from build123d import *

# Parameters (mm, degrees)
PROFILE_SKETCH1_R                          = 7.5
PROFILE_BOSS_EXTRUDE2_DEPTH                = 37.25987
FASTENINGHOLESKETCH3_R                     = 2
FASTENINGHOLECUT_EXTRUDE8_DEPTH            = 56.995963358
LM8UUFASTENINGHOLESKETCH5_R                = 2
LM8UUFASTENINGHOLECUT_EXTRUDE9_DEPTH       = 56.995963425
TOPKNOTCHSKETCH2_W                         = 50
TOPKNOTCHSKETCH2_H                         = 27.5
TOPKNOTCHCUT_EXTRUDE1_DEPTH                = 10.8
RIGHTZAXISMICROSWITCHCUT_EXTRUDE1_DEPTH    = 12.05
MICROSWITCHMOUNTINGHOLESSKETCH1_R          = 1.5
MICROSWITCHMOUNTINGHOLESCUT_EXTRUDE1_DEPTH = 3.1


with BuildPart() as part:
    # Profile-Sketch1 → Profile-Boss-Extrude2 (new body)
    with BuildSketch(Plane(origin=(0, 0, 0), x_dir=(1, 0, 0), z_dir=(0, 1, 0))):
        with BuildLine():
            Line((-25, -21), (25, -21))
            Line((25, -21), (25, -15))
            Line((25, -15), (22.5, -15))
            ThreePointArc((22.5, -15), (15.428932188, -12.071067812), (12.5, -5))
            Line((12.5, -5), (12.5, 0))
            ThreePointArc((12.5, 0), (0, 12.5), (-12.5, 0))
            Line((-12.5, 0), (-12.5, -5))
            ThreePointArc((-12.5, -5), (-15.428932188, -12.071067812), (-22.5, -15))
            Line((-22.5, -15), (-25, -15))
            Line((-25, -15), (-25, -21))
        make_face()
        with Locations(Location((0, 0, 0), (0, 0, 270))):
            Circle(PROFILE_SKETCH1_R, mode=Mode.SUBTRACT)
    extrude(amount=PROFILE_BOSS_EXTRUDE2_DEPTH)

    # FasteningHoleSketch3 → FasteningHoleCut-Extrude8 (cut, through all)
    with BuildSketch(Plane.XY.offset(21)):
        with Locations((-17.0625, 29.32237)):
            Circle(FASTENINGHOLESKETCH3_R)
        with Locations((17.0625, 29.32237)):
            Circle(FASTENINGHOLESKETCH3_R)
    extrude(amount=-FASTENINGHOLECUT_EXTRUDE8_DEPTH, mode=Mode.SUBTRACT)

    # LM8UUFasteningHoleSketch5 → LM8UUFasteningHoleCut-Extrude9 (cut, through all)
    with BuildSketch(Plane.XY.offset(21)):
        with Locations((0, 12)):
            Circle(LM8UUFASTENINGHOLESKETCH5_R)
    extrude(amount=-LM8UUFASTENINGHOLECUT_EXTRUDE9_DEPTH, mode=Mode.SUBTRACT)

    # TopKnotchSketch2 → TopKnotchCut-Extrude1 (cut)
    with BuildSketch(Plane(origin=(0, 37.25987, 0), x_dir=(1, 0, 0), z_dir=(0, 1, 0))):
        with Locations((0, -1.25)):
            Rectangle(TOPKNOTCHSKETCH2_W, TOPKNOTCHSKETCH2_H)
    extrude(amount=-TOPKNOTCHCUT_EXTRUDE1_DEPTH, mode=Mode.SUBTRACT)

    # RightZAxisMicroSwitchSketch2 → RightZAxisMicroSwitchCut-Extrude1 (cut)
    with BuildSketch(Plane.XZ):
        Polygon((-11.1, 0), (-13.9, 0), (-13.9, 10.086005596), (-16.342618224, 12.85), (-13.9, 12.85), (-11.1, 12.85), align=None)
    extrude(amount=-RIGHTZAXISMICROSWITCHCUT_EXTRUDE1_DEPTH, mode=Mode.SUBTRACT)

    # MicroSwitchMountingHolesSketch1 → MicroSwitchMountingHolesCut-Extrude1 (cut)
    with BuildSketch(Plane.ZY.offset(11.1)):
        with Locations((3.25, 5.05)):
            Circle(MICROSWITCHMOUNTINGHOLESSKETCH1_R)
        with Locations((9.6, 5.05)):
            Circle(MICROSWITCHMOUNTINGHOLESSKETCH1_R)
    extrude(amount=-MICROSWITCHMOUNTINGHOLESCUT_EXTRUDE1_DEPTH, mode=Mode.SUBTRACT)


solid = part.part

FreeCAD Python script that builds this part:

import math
import FreeCAD as App
import Part
import Sketcher

V = App.Vector
Q = App.Units.Quantity


def add_polygon(sketch, points):
    """Adds a closed chain of lines whose ends are joined by coincident constraints."""
    first, n = sketch.GeometryCount, len(points)
    for a, b in zip(points, points[1:] + points[:1]):
        sketch.addGeometry(Part.LineSegment(App.Vector(*a, 0), App.Vector(*b, 0)), False)
    for i in range(n):
        sketch.addConstraint(Sketcher.Constraint("Coincident", first + i, 2, first + (i + 1) % n, 1))

doc = App.newDocument("Part")
body = doc.addObject("PartDesign::Body", "Body")

# Sketch on XZ plane
sketch1 = body.newObject("Sketcher::SketchObject", "Sketch")
sketch1.AttachmentSupport = (doc.getObject("XZ_Plane"), [""])
sketch1.MapMode = "FlatFace"
sketch1.addGeometry([
    Part.LineSegment(V(-25, 21, 0), V(25, 21, 0)),  # 0
    Part.LineSegment(V(25, 21, 0), V(25, 15, 0)),  # 1
    Part.LineSegment(V(25, 15, 0), V(22.5, 15, 0)),  # 2
    Part.ArcOfCircle(Part.Circle(V(22.5, 5, 0), V(0, 0, 1), 10), math.radians(90), math.radians(180)),  # 3
    Part.LineSegment(V(12.5, 5, 0), V(12.5, 0, 0)),  # 4
    Part.ArcOfCircle(Part.Circle(V(0, 0, 0), V(0, 0, 1), 12.5), math.radians(180), math.radians(360)),  # 5
    Part.LineSegment(V(-12.5, 0, 0), V(-12.5, 5, 0)),  # 6
    Part.ArcOfCircle(Part.Circle(V(-22.5, 5, 0), V(0, 0, 1), 10), math.radians(0), math.radians(90)),  # 7
    Part.LineSegment(V(-22.5, 15, 0), V(-25, 15, 0)),  # 8
    Part.LineSegment(V(-25, 15, 0), V(-25, 21, 0)),  # 9
    Part.Circle(V(0, 0, 0), V(0, 0, 1), 7.5),  # 10
], False)
sketch1.addConstraint([
    Sketcher.Constraint("Coincident", 0, 2, 1, 1),
    Sketcher.Constraint("Coincident", 1, 2, 2, 1),
    Sketcher.Constraint("Tangent", 2, 2, 3, 1),
    Sketcher.Constraint("Tangent", 3, 2, 4, 1),
    Sketcher.Constraint("Tangent", 4, 2, 5, 2),
    Sketcher.Constraint("Tangent", 5, 1, 6, 1),
    Sketcher.Constraint("Tangent", 6, 2, 7, 1),
    Sketcher.Constraint("Tangent", 7, 2, 8, 1),
    Sketcher.Constraint("Coincident", 8, 2, 9, 1),
    Sketcher.Constraint("Coincident", 9, 2, 0, 1),
    Sketcher.Constraint("Horizontal", 0),
    Sketcher.Constraint("Vertical", 1),
    Sketcher.Constraint("Horizontal", 2),
    Sketcher.Constraint("Vertical", 4),
    Sketcher.Constraint("Vertical", 6),
    Sketcher.Constraint("Horizontal", 8),
    Sketcher.Constraint("Vertical", 9),
    Sketcher.Constraint("Coincident", 5, 3, -1, 1),
    Sketcher.Constraint("Coincident", 10, 3, -1, 1),
    Sketcher.Constraint("Equal", 3, 7),
    Sketcher.Constraint("Symmetric", 1, 2, 8, 2, -2),
    Sketcher.Constraint("Diameter", 10, Q("15 mm")),
    Sketcher.Constraint("Radius", 3, Q("10 mm")),
    Sketcher.Constraint("Radius", 5, Q("12.5 mm")),
    Sketcher.Constraint("DistanceX", 0, 1, 0, 2, Q("50 mm")),
    Sketcher.Constraint("DistanceY", 1, 2, 1, 1, Q("6 mm")),
    Sketcher.Constraint("DistanceY", 4, 2, 4, 1, Q("5 mm")),
])
pad1 = body.newObject("PartDesign::Pad", "Pad")
pad1.Profile = sketch1
pad1.Length = 37.25987
pad1.Reversed = True

# Sketch on XY plane
sketch2 = body.newObject("Sketcher::SketchObject", "Sketch001")
sketch2.AttachmentSupport = (doc.getObject("XY_Plane"), [""])
sketch2.MapMode = "FlatFace"
sketch2.AttachmentOffset = App.Placement(V(0, 0, 21), App.Rotation())
sketch2.addGeometry([
    Part.Circle(V(-17.1, 29.3, 0), V(0, 0, 1), 2),
    Part.Circle(V(17.1, 29.3, 0), V(0, 0, 1), 2),
], False)
sketch2.addConstraint([
    Sketcher.Constraint("Equal", 0, 1),
    Sketcher.Constraint("Symmetric", 0, 3, 1, 3, -2),
    Sketcher.Constraint("Diameter", 0, Q("4 mm")),
    Sketcher.Constraint("DistanceX", 0, 3, 1, 3, Q("34.125 mm")),
    Sketcher.Constraint("DistanceY", -1, 1, 0, 3, Q("29.32237 mm")),
])
pocket1 = body.newObject("PartDesign::Pocket", "Pocket")
pocket1.Profile = sketch2
pocket1.Type = "ThroughAll"

# Sketch on XY plane
sketch3 = body.newObject("Sketcher::SketchObject", "Sketch002")
sketch3.AttachmentSupport = (doc.getObject("XY_Plane"), [""])
sketch3.MapMode = "FlatFace"
sketch3.AttachmentOffset = App.Placement(V(0, 0, 21), App.Rotation())
sketch3.addGeometry(Part.Circle(V(0, 12, 0), V(0, 0, 1), 2), False)
sketch3.addConstraint([
    Sketcher.Constraint("PointOnObject", 0, 3, -2),
    Sketcher.Constraint("Diameter", 0, Q("4 mm")),
    Sketcher.Constraint("DistanceY", -1, 1, 0, 3, Q("12 mm")),
])
pocket2 = body.newObject("PartDesign::Pocket", "Pocket001")
pocket2.Profile = sketch3
pocket2.Type = "ThroughAll"

# Sketch on XZ plane
sketch4 = body.newObject("Sketcher::SketchObject", "Sketch003")
sketch4.AttachmentSupport = (doc.getObject("XZ_Plane"), [""])
sketch4.MapMode = "FlatFace"
sketch4.AttachmentOffset = App.Placement(V(0, 0, -37.25987), App.Rotation())
add_polygon(sketch4, [(-25, -12), (-25, 15), (25, 15), (25, -12)])  # lines 0-3
sketch4.addConstraint([
    Sketcher.Constraint("Vertical", 0),
    Sketcher.Constraint("Horizontal", 1),
    Sketcher.Constraint("Vertical", 2),
    Sketcher.Constraint("Horizontal", 3),
    Sketcher.Constraint("DistanceX", 1, 1, 1, 2, Q("50 mm")),
    Sketcher.Constraint("DistanceY", 0, 1, 0, 2, Q("27.5 mm")),
    Sketcher.Constraint("DistanceX", 0, 2, -1, 1, Q("25 mm")),
    Sketcher.Constraint("DistanceY", -1, 1, 0, 2, Q("15 mm")),
])
pocket3 = body.newObject("PartDesign::Pocket", "Pocket002")
pocket3.Profile = sketch4
pocket3.Length = 10.8
pocket3.Reversed = True

# Sketch on XZ plane
sketch5 = body.newObject("Sketcher::SketchObject", "Sketch004")
sketch5.AttachmentSupport = (doc.getObject("XZ_Plane"), [""])
sketch5.MapMode = "FlatFace"
add_polygon(sketch5, [(-13.9, 0), (-11.1, 0), (-11.1, 12.8), (-16.3, 12.8), (-13.9, 10.1)])  # lines 0-4
sketch5.addConstraint([
    Sketcher.Constraint("Horizontal", 0),
    Sketcher.Constraint("Vertical", 1),
    Sketcher.Constraint("Horizontal", 2),
    Sketcher.Constraint("Vertical", 4),
    Sketcher.Constraint("PointOnObject", 0, 2, -1),
    Sketcher.Constraint("DistanceX", 0, 1, 0, 2, Q("2.8 mm")),
    Sketcher.Constraint("DistanceY", 1, 1, 1, 2, Q("12.85 mm")),
    Sketcher.Constraint("DistanceX", 0, 2, -1, 1, Q("11.1 mm")),
    Sketcher.Constraint("DistanceX", 2, 2, 2, 1, Q("5.242618 mm")),
    Sketcher.Constraint("DistanceY", 4, 2, 4, 1, Q("10.086006 mm")),
])
pocket4 = body.newObject("PartDesign::Pocket", "Pocket003")
pocket4.Profile = sketch5
pocket4.Length = 12.05

# Sketch on YZ plane
sketch6 = body.newObject("Sketcher::SketchObject", "Sketch005")
sketch6.AttachmentSupport = (doc.getObject("YZ_Plane"), [""])
sketch6.MapMode = "FlatFace"
sketch6.AttachmentOffset = App.Placement(V(0, 0, -11.1), App.Rotation())
sketch6.addGeometry([
    Part.Circle(V(5, 3.2, 0), V(0, 0, 1), 1.5),
    Part.Circle(V(5, 9.6, 0), V(0, 0, 1), 1.5),
], False)
sketch6.addConstraint([
    Sketcher.Constraint("Equal", 0, 1),
    Sketcher.Constraint("Vertical", 0, 3, 1, 3),
    Sketcher.Constraint("Diameter", 0, Q("3 mm")),
    Sketcher.Constraint("DistanceY", -1, 1, 1, 3, Q("9.6 mm")),
    Sketcher.Constraint("DistanceX", -1, 1, 0, 3, Q("5.05 mm")),
    Sketcher.Constraint("DistanceY", -1, 1, 0, 3, Q("3.25 mm")),
])
pocket5 = body.newObject("PartDesign::Pocket", "Pocket004")
pocket5.Profile = sketch6
pocket5.Length = 3.1
pocket5.Reversed = True

doc.recompute()
